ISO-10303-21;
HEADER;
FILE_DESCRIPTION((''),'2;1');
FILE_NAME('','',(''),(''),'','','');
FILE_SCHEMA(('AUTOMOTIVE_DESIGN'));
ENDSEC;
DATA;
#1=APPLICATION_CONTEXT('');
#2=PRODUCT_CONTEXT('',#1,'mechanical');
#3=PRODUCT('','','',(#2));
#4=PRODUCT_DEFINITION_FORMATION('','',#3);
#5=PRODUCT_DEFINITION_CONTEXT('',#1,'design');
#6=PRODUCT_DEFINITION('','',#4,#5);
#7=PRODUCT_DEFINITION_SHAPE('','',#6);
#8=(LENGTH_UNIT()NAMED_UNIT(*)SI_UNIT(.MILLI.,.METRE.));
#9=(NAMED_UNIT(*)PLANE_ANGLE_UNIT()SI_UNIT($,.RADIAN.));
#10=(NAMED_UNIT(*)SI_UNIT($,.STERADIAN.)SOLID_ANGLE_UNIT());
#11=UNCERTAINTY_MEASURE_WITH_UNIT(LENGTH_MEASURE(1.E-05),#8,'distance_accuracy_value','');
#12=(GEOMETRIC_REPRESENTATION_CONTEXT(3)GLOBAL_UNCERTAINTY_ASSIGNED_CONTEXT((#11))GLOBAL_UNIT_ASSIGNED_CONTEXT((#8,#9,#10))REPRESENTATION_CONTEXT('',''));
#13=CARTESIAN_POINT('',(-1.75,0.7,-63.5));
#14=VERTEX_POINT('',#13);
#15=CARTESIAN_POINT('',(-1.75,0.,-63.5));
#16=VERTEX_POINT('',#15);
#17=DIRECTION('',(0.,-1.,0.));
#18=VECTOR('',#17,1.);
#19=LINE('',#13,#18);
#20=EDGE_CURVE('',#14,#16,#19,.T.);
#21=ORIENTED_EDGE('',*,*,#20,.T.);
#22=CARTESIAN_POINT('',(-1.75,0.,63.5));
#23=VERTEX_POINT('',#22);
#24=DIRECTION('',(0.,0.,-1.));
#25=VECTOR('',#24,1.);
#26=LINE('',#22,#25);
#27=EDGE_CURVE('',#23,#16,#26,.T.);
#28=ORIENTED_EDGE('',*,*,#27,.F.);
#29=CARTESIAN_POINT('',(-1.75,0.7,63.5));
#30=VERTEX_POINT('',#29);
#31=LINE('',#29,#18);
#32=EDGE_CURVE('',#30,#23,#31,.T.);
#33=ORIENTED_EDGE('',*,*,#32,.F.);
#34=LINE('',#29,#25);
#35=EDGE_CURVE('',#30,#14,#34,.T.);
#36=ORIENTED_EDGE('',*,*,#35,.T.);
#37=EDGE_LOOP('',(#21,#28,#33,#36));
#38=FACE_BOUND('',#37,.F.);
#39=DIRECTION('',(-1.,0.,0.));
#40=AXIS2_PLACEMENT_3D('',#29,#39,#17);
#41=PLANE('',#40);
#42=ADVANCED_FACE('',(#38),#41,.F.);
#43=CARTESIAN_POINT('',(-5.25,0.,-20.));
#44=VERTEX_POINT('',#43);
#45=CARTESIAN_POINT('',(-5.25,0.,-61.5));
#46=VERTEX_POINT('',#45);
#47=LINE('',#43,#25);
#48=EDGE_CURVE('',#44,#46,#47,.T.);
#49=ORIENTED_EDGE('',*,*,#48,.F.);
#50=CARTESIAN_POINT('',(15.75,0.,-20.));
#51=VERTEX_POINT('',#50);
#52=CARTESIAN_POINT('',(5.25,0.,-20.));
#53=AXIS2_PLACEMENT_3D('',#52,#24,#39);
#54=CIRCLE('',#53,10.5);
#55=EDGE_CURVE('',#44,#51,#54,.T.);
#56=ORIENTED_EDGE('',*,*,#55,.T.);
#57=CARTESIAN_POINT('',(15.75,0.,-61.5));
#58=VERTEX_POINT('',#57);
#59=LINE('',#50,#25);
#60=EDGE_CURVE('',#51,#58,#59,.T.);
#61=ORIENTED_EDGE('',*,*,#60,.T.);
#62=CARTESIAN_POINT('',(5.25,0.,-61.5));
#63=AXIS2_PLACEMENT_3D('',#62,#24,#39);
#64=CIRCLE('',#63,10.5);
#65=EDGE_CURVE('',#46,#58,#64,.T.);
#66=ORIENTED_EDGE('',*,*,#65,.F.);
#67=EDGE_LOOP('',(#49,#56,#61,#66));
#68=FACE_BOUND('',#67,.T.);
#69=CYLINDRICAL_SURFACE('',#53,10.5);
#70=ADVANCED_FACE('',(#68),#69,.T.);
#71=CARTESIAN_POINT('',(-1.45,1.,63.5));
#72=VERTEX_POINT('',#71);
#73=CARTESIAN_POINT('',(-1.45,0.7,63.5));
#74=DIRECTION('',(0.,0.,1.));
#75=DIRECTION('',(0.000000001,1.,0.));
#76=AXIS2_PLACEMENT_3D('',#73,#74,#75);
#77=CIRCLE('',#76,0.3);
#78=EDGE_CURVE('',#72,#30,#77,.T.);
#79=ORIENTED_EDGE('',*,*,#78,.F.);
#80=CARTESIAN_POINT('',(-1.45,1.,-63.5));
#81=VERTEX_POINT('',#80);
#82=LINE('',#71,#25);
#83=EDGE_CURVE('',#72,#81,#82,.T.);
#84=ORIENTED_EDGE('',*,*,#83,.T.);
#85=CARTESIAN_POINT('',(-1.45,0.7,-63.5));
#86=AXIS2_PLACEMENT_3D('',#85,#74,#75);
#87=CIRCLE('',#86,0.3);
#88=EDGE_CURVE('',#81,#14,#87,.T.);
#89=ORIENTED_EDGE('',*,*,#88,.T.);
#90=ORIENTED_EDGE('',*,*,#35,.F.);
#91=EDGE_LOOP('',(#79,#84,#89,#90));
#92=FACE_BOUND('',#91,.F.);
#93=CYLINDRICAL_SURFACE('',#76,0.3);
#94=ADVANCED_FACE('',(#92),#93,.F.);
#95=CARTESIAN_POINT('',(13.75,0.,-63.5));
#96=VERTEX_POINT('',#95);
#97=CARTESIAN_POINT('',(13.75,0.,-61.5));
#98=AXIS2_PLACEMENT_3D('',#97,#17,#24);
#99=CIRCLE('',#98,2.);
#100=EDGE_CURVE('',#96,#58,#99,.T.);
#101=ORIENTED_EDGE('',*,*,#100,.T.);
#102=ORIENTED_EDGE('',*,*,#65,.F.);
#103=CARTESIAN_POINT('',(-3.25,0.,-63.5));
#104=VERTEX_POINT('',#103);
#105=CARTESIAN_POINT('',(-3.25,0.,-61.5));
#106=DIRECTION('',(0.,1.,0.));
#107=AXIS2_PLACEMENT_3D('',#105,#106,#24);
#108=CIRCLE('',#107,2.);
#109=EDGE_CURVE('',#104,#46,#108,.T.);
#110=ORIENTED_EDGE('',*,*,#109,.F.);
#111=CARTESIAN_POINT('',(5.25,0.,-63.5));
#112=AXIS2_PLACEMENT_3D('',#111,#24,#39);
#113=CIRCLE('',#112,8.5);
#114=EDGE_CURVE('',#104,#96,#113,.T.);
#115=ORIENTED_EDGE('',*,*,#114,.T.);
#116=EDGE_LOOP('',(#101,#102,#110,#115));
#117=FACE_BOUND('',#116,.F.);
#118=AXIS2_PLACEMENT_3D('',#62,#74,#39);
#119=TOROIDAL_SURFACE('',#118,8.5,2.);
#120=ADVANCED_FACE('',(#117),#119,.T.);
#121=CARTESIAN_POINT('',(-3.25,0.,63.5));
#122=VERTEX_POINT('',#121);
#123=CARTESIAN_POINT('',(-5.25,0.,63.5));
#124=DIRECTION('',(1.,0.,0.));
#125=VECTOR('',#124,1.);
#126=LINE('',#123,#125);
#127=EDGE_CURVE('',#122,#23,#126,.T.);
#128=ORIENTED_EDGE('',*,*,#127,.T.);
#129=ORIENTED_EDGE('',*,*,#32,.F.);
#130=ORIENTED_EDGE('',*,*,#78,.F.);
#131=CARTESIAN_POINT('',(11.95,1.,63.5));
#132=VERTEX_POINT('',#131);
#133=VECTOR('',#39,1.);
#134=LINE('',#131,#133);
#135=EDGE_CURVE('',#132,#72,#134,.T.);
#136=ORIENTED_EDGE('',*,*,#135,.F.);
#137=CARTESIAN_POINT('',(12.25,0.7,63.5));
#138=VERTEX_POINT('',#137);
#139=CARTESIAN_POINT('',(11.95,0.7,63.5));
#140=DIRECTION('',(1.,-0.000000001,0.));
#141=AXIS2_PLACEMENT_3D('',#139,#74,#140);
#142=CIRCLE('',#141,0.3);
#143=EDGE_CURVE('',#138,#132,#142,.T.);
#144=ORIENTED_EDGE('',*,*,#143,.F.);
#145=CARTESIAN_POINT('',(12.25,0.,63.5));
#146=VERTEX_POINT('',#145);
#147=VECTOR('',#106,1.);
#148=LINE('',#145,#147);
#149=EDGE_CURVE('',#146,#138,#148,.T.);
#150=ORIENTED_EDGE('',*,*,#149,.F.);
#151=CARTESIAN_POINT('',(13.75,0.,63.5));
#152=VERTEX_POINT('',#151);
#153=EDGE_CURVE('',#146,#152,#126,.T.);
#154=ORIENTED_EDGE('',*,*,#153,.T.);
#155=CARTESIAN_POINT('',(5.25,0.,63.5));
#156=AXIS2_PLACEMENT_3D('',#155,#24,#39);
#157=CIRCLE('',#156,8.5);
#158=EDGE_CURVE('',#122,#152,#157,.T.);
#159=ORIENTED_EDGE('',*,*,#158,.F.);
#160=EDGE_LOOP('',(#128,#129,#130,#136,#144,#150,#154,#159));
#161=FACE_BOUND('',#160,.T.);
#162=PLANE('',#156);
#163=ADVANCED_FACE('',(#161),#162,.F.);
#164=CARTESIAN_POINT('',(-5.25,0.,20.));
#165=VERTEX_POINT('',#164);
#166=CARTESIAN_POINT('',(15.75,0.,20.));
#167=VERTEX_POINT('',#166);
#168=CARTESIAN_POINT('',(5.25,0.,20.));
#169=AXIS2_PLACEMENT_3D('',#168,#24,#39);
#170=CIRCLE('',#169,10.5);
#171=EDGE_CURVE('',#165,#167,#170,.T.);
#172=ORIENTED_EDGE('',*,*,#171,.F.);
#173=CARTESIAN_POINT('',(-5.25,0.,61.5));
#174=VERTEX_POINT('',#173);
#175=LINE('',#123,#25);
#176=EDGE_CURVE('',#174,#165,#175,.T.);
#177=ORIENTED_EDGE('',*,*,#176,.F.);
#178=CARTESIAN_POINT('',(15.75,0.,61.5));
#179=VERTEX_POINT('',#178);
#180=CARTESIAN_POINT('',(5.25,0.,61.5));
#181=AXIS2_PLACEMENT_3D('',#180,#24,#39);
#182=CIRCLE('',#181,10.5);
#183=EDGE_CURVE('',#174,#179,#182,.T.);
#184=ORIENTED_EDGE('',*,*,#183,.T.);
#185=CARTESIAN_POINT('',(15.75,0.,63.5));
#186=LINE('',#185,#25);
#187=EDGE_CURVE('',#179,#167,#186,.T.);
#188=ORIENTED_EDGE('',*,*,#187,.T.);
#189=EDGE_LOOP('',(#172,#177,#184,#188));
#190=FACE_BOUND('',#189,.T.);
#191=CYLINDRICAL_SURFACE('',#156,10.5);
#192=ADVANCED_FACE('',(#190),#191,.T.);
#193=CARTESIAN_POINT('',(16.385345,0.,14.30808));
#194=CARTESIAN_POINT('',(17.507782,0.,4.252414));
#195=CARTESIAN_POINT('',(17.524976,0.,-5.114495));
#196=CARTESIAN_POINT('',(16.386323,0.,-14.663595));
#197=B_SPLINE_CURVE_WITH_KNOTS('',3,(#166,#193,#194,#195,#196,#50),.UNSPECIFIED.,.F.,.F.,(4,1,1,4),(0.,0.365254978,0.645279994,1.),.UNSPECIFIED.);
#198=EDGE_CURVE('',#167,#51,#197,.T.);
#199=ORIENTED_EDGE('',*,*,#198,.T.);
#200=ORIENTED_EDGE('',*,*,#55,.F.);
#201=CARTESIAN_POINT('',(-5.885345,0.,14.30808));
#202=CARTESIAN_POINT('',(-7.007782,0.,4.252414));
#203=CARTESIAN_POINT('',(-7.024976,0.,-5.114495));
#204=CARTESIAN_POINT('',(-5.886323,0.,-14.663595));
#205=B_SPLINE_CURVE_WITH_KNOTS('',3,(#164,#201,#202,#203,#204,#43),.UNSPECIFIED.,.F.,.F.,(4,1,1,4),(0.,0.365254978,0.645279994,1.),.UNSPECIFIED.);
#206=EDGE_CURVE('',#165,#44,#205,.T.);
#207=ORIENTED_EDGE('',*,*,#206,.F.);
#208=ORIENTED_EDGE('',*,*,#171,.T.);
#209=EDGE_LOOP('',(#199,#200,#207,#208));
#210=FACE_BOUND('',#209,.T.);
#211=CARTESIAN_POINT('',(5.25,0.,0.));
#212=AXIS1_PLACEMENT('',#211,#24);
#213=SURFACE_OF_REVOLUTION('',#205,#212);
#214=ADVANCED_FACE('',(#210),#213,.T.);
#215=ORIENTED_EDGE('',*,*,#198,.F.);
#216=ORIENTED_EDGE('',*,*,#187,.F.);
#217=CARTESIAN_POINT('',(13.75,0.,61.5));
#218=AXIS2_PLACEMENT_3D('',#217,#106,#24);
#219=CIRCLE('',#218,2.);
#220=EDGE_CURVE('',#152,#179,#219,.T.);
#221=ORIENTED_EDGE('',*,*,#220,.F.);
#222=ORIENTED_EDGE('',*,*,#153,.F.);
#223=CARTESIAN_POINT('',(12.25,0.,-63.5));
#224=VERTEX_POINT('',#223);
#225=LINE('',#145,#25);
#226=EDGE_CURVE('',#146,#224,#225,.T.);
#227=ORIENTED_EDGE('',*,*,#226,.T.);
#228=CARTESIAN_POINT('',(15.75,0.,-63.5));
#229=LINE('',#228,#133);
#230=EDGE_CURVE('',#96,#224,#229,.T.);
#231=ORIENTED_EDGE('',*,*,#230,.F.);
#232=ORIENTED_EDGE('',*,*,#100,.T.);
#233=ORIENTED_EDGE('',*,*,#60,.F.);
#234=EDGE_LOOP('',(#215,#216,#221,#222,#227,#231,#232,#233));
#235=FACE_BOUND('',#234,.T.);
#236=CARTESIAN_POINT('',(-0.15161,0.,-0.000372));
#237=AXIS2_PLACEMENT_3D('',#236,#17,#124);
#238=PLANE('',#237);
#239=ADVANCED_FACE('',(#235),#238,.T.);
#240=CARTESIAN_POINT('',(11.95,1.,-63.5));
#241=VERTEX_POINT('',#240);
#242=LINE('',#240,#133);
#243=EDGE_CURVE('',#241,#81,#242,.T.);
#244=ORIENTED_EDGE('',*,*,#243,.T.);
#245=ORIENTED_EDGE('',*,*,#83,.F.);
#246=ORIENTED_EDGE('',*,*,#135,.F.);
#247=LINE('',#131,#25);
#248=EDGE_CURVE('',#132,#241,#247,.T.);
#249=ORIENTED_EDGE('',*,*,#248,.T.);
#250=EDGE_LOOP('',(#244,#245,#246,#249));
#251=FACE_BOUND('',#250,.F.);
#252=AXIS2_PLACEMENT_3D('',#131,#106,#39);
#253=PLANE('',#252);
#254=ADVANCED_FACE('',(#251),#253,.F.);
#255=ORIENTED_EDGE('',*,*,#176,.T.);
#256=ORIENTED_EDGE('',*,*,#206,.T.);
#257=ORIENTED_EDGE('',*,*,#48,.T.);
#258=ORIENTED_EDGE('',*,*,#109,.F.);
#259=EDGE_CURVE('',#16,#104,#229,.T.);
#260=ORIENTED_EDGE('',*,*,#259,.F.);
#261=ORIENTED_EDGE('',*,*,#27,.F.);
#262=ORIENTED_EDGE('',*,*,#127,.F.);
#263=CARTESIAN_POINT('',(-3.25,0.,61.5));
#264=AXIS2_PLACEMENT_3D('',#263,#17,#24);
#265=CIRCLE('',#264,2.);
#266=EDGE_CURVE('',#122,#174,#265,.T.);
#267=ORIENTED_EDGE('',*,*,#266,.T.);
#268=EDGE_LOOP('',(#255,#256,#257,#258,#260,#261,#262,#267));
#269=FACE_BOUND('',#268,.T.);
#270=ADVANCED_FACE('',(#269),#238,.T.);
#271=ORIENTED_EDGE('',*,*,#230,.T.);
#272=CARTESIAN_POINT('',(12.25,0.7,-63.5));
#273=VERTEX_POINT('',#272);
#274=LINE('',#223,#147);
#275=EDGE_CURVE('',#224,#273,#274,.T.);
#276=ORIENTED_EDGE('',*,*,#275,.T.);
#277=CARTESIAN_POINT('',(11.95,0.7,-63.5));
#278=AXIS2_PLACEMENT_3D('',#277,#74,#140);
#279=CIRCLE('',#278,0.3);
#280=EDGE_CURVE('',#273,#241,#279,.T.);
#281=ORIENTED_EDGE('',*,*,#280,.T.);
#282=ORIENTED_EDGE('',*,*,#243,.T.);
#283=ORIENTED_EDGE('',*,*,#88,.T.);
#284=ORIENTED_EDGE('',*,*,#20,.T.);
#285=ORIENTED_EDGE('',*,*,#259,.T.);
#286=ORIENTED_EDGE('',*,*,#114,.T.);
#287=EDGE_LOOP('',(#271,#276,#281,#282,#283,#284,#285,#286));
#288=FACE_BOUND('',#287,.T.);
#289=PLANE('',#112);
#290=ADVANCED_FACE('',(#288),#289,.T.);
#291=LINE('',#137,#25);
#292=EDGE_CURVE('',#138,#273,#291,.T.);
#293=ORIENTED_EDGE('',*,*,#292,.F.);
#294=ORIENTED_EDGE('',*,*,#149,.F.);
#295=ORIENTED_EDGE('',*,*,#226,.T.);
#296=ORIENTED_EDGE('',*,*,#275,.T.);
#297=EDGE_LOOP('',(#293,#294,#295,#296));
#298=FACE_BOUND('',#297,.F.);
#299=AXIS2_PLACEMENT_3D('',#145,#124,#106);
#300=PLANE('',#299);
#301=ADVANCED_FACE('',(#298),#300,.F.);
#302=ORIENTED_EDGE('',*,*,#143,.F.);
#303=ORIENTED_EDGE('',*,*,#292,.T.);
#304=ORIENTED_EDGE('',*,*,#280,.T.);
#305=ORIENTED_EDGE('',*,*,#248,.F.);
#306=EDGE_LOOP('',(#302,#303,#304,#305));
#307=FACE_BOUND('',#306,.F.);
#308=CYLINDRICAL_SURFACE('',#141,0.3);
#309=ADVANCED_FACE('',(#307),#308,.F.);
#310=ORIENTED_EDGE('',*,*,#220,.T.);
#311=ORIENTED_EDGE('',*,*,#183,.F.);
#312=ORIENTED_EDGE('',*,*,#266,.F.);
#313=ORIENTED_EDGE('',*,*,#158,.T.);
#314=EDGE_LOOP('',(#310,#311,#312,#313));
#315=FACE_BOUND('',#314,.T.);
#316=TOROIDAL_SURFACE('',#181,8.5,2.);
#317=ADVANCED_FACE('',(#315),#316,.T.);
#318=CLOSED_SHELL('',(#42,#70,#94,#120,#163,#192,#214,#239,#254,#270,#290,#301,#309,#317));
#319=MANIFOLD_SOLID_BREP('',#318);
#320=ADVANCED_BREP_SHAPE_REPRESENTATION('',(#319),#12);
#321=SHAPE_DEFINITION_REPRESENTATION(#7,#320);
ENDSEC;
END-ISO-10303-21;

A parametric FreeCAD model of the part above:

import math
import FreeCAD as App
import Part
import Sketcher
from FreeCAD import Vector
Q = App.Units.Quantity


def edges_at(feature, points):
    """Names of the edges that pass closest to the given points."""
    edges = feature.Shape.Edges
    near = lambda p: min(range(len(edges)), key=lambda i: edges[i].distToShape(Part.Vertex(*p))[0])
    return sorted({f"Edge{near(p) + 1}" for p in points})

doc = App.newDocument("Part")
body = doc.addObject("PartDesign::Body", "Body")

# Sketch on XZ plane
sketch1 = body.newObject("Sketcher::SketchObject", "Sketch")
sketch1.AttachmentSupport = (doc.getObject("XZ_Plane"), [""])
sketch1.MapMode = "FlatFace"
sketch1.addGeometry(Part.LineSegment(Vector(5.25, 63.5, 0), Vector(-5.25, 63.5, 0)), False)
sketch1.addGeometry(Part.LineSegment(Vector(-5.25, 63.5, 0), Vector(-5.25, 20, 0)), False)
sketch1.addGeometry(Part.BSplineCurve([Vector(-5.25, 20, 0), Vector(-5.885345, 14.30808, 0), Vector(-7.007782, 4.252414, 0), Vector(-7.024976, -5.114495, 0), Vector(-5.886323, -14.663595, 0), Vector(-5.25, -20, 0)], [4, 1, 1, 4], [0, 0.365254978, 0.645279994, 1], False, 3, [1, 1, 1, 1, 1, 1], False), False)
sketch1.addGeometry(Part.LineSegment(Vector(-5.25, -20, 0), Vector(-5.25, -63.5, 0)), False)
sketch1.addGeometry(Part.LineSegment(Vector(-5.25, -63.5, 0), Vector(5.25, -63.5, 0)), False)
sketch1.addGeometry(Part.LineSegment(Vector(5.25, -63.5, 0), Vector(5.25, 63.5, 0)), False)
sketch1.addGeometry(Part.LineSegment(Vector(5.25, 63.5, 0), Vector(5.25, -63.5, 0)), True)  # axis
sketch1.addConstraint(Sketcher.Constraint("Block", 2))
sketch1.addConstraint(Sketcher.Constraint("Coincident", 0, 2, 1, 1))
sketch1.addConstraint(Sketcher.Constraint("Coincident", 1, 2, 2, 1))
sketch1.addConstraint(Sketcher.Constraint("Coincident", 2, 2, 3, 1))
sketch1.addConstraint(Sketcher.Constraint("Coincident", 3, 2, 4, 1))
sketch1.addConstraint(Sketcher.Constraint("Coincident", 4, 2, 5, 1))
sketch1.addConstraint(Sketcher.Constraint("Coincident", 5, 2, 0, 1))
sketch1.addConstraint(Sketcher.Constraint("Horizontal", 0))
sketch1.addConstraint(Sketcher.Constraint("Vertical", 1))
sketch1.addConstraint(Sketcher.Constraint("Vertical", 3))
sketch1.addConstraint(Sketcher.Constraint("Horizontal", 4))
sketch1.addConstraint(Sketcher.Constraint("Vertical", 5))
sketch1.addConstraint(Sketcher.Constraint("Vertical", 6))
sketch1.addConstraint(Sketcher.Constraint("Coincident", 6, 1, 5, 2))
sketch1.addConstraint(Sketcher.Constraint("Symmetric", 0, 2, 4, 2, -1, 1))
sketch1.addConstraint(Sketcher.Constraint("Horizontal", 3, 2, 6, 2))
sketch1.addConstraint(Sketcher.Constraint("DistanceY", 5, 1, 5, 2, Q("127 mm")))
revolution = body.newObject("PartDesign::Revolution", "Revolution")
revolution.Profile = sketch1
revolution.ReferenceAxis = (sketch1, ["Axis0"])
revolution.Angle = 180

# Sketch on XY plane
sketch2 = body.newObject("Sketcher::SketchObject", "Sketch001")
sketch2.AttachmentSupport = (doc.getObject("XY_Plane"), [""])
sketch2.MapMode = "FlatFace"
sketch2.AttachmentOffset = App.Placement(Vector(0, 0, 63.5), App.Rotation())
sketch2.addGeometry(Part.LineSegment(Vector(-1.75, 0, 0), Vector(12.25, 0, 0)), False)
sketch2.addGeometry(Part.LineSegment(Vector(12.25, 0, 0), Vector(12.25, 0.7, 0)), False)
sketch2.addGeometry(Part.ArcOfCircle(Part.Circle(Vector(11.95, 0.7, 0), Vector(0, 0, 1), 0.3), math.radians(0), math.radians(90)), False)
sketch2.addGeometry(Part.LineSegment(Vector(11.95, 1, 0), Vector(-1.45, 1, 0)), False)
sketch2.addGeometry(Part.ArcOfCircle(Part.Circle(Vector(-1.45, 0.7, 0), Vector(0, 0, 1), 0.3), math.radians(90), math.radians(180)), False)
sketch2.addGeometry(Part.LineSegment(Vector(-1.75, 0.7, 0), Vector(-1.75, 0, 0)), False)
sketch2.addConstraint(Sketcher.Constraint("Coincident", 0, 2, 1, 1))
sketch2.addConstraint(Sketcher.Constraint("Tangent", 1, 2, 2, 1))
sketch2.addConstraint(Sketcher.Constraint("Tangent", 2, 2, 3, 1))
sketch2.addConstraint(Sketcher.Constraint("Tangent", 3, 2, 4, 1))
sketch2.addConstraint(Sketcher.Constraint("Tangent", 4, 2, 5, 1))
sketch2.addConstraint(Sketcher.Constraint("Coincident", 5, 2, 0, 1))
sketch2.addConstraint(Sketcher.Constraint("Horizontal", 0))
sketch2.addConstraint(Sketcher.Constraint("Vertical", 1))
sketch2.addConstraint(Sketcher.Constraint("Horizontal", 3))
sketch2.addConstraint(Sketcher.Constraint("Vertical", 5))
sketch2.addConstraint(Sketcher.Constraint("Equal", 2, 4))
sketch2.addConstraint(Sketcher.Constraint("PointOnObject", 0, 2, -1))
sketch2.addConstraint(Sketcher.Constraint("Radius", 2, Q("0.3 mm")))
sketch2.addConstraint(Sketcher.Constraint("DistanceX", 0, 1, 0, 2, Q("14 mm")))
sketch2.addConstraint(Sketcher.Constraint("DistanceY", 1, 1, 1, 2, Q("0.7 mm")))
sketch2.addConstraint(Sketcher.Constraint("DistanceX", -1, 1, 2, 3, Q("11.95 mm")))
pocket1 = body.newObject("PartDesign::Pocket", "Pocket")
pocket1.Profile = sketch2
pocket1.Length = 127
doc.recompute()

fillet = body.newObject("PartDesign::Fillet", "Fillet")
fillet.Base = (pocket1, edges_at(pocket1, [(5.25, 10.5, 63.5)]))
fillet.Radius = 2
doc.recompute()

fillet2 = body.newObject("PartDesign::Fillet", "Fillet001")
fillet2.Base = (fillet, edges_at(fillet, [(5.25, 10.5, -63.5)]))
fillet2.Radius = 2

doc.recompute()
